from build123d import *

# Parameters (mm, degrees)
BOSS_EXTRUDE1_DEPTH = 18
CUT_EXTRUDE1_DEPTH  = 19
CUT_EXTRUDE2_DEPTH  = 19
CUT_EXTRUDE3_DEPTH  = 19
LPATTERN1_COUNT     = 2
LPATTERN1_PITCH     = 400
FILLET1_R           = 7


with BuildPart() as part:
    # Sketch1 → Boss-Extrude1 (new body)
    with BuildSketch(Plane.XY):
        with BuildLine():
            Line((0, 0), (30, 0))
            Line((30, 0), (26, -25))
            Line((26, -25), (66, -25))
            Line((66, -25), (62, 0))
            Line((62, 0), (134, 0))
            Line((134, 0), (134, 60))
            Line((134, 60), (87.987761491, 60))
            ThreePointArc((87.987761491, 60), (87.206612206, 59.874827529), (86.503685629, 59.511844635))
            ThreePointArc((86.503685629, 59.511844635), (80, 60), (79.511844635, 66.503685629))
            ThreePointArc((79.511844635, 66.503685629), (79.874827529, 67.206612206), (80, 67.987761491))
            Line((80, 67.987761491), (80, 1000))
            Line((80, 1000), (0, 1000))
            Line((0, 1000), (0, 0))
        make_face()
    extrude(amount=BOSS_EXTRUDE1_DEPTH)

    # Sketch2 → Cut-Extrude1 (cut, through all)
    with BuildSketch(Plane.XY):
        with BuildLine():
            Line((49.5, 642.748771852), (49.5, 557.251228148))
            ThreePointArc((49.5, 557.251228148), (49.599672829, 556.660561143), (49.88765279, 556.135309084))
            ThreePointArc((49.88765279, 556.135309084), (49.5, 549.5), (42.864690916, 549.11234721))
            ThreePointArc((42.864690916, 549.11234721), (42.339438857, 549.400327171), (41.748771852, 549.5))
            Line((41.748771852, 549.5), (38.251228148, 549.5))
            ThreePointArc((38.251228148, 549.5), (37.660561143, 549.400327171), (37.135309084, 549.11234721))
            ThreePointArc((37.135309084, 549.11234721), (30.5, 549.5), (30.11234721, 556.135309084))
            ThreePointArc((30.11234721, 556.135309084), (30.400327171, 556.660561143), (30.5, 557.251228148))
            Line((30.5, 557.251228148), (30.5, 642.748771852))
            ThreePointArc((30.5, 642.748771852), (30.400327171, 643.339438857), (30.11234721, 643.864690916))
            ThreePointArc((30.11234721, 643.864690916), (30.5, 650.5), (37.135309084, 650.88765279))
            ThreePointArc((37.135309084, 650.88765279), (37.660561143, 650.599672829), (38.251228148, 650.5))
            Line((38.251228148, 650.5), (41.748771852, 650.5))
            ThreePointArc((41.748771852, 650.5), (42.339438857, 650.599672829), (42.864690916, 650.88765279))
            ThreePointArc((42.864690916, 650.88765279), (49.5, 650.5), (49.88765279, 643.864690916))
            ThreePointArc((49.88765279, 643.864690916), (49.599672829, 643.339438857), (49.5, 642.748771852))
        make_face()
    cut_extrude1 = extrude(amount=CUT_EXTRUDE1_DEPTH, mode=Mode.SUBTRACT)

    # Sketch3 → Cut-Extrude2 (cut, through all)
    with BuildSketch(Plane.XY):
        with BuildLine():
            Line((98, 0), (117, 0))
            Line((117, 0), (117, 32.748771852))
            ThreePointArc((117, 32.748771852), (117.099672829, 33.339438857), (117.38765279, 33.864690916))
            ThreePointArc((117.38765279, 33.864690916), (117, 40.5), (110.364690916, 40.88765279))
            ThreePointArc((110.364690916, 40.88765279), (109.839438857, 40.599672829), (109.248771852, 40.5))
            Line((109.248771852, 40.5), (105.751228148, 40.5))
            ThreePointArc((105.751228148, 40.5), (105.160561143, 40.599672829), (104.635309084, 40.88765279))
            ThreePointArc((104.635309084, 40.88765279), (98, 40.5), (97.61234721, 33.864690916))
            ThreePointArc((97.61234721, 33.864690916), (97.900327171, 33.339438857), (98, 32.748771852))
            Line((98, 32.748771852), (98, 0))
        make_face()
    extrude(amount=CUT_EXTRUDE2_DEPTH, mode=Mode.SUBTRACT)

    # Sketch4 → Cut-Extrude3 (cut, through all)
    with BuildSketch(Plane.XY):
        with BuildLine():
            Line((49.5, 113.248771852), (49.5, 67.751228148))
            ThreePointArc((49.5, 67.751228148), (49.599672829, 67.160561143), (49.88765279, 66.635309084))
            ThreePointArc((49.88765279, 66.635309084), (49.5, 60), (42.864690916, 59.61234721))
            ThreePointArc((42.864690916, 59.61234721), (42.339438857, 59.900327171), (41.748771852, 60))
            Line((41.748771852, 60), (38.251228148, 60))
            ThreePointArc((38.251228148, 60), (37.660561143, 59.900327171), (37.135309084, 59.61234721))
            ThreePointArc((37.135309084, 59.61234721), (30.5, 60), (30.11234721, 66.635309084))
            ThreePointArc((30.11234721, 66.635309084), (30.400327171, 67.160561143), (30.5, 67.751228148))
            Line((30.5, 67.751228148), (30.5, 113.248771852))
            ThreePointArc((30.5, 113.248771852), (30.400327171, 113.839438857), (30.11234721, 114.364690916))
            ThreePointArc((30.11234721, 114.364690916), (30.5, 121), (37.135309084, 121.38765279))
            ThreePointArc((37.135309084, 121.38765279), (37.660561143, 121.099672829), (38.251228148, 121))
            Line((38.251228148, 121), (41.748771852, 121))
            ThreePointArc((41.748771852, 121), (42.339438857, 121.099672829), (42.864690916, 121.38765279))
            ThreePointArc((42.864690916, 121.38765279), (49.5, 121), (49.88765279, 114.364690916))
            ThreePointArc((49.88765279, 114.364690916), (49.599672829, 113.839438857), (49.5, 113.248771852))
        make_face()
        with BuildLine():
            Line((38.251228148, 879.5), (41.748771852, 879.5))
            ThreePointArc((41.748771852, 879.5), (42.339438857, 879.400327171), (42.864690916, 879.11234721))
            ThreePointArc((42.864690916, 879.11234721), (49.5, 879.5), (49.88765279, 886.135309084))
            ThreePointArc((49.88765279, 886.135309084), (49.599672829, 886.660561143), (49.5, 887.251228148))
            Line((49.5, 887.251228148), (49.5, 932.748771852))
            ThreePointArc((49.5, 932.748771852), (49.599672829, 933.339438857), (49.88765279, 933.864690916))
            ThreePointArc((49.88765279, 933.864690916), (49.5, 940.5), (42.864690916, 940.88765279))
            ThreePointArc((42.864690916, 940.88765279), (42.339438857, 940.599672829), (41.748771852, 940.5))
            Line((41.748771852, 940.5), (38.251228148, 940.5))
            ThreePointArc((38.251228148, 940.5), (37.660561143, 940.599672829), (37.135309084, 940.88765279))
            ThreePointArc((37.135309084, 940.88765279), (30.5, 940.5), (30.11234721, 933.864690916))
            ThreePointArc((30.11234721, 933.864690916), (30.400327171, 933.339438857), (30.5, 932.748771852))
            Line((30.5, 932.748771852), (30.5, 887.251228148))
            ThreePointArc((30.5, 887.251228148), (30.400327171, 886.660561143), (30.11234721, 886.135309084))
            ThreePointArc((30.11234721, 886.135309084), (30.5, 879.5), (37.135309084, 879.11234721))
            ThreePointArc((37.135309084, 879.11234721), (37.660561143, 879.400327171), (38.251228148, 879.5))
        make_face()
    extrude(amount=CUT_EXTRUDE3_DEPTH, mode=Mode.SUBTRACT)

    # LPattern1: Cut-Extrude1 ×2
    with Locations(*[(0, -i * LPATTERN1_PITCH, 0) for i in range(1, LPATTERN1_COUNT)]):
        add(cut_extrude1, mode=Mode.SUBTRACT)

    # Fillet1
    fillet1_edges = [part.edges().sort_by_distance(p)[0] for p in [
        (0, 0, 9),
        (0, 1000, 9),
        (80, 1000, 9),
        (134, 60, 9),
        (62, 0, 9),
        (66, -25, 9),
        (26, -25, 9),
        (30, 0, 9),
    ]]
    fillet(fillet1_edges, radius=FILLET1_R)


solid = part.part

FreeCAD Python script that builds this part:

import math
import FreeCAD as App
import Part
import Sketcher
from FreeCAD import Vector
Q = App.Units.Quantity


def edges_at(feature, points):
    """Names of the edges that pass closest to the given points."""
    edges = feature.Shape.Edges
    near = lambda p: min(range(len(edges)), key=lambda i: edges[i].distToShape(Part.Vertex(*p))[0])
    return sorted({f"Edge{near(p) + 1}" for p in points})

doc = App.newDocument("Part")
body = doc.addObject("PartDesign::Body", "Body")

sketch1 = body.newObject("Sketcher::SketchObject", "Sketch")
sketch1.AttachmentSupport = (doc.getObject("XY_Plane"), [""])
sketch1.MapMode = "FlatFace"
sketch1.addGeometry(Part.LineSegment(Vector(0, 0, 0), Vector(30, 0, 0)), False)
sketch1.addGeometry(Part.LineSegment(Vector(30, 0, 0), Vector(26, -25, 0)), False)
sketch1.addGeometry(Part.LineSegment(Vector(26, -25, 0), Vector(66, -25, 0)), False)
sketch1.addGeometry(Part.LineSegment(Vector(66, -25, 0), Vector(62, 0, 0)), False)
sketch1.addGeometry(Part.LineSegment(Vector(62, 0, 0), Vector(134, 0, 0)), False)
sketch1.addGeometry(Part.LineSegment(Vector(134, 0, 0), Vector(134, 60, 0)), False)
sketch1.addGeometry(Part.LineSegment(Vector(134, 60, 0), Vector(87.987761, 60, 0)), False)
sketch1.addGeometry(Part.ArcOfCircle(Part.Circle(Vector(87.987761, 57.5, 0), Vector(0, 0, 1), 2.5), math.radians(90), math.radians(126.415054)), False)
sketch1.addGeometry(Part.ArcOfCircle(Part.Circle(Vector(83.535534, 63.535534, 0), Vector(0, 0, 1), 5), math.radians(143.584946), math.radians(306.415054)), False)
sketch1.addGeometry(Part.ArcOfCircle(Part.Circle(Vector(77.5, 67.987761, 0), Vector(0, 0, 1), 2.5), math.radians(-36.415054), math.radians(0)), False)
sketch1.addGeometry(Part.LineSegment(Vector(80, 67.987761, 0), Vector(80, 1000, 0)), False)
sketch1.addGeometry(Part.LineSegment(Vector(80, 1000, 0), Vector(0, 1000, 0)), False)
sketch1.addGeometry(Part.LineSegment(Vector(0, 1000, 0), Vector(0, 0, 0)), False)
sketch1.addConstraint(Sketcher.Constraint("Coincident", 0, 2, 1, 1))
sketch1.addConstraint(Sketcher.Constraint("Coincident", 1, 2, 2, 1))
sketch1.addConstraint(Sketcher.Constraint("Coincident", 2, 2, 3, 1))
sketch1.addConstraint(Sketcher.Constraint("Coincident", 3, 2, 4, 1))
sketch1.addConstraint(Sketcher.Constraint("Coincident", 4, 2, 5, 1))
sketch1.addConstraint(Sketcher.Constraint("Coincident", 5, 2, 6, 1))
sketch1.addConstraint(Sketcher.Constraint("Tangent", 6, 2, 7, 1))
sketch1.addConstraint(Sketcher.Constraint("Tangent", 7, 2, 8, 2))
sketch1.addConstraint(Sketcher.Constraint("Tangent", 8, 1, 9, 1))
sketch1.addConstraint(Sketcher.Constraint("Tangent", 9, 2, 10, 1))
sketch1.addConstraint(Sketcher.Constraint("Coincident", 10, 2, 11, 1))
sketch1.addConstraint(Sketcher.Constraint("Coincident", 11, 2, 12, 1))
sketch1.addConstraint(Sketcher.Constraint("Coincident", 12, 2, 0, 1))
sketch1.addConstraint(Sketcher.Constraint("Horizontal", 0))
sketch1.addConstraint(Sketcher.Constraint("Horizontal", 2))
sketch1.addConstraint(Sketcher.Constraint("Horizontal", 4))
sketch1.addConstraint(Sketcher.Constraint("Vertical", 5))
sketch1.addConstraint(Sketcher.Constraint("Horizontal", 6))
sketch1.addConstraint(Sketcher.Constraint("Vertical", 10))
sketch1.addConstraint(Sketcher.Constraint("Horizontal", 11))
sketch1.addConstraint(Sketcher.Constraint("Vertical", 12))
sketch1.addConstraint(Sketcher.Constraint("Coincident", 12, 2, -1, 1))
sketch1.addConstraint(Sketcher.Constraint("Equal", 7, 9))
sketch1.addConstraint(Sketcher.Constraint("PointOnObject", 3, 2, -1))
sketch1.addConstraint(Sketcher.Constraint("Equal", 1, 3))
sketch1.addConstraint(Sketcher.Constraint("Radius", 8, Q("5 mm")))
sketch1.addConstraint(Sketcher.Constraint("Radius", 7, Q("2.5 mm")))
sketch1.addConstraint(Sketcher.Constraint("DistanceX", 0, 1, 0, 2, Q("30 mm")))
sketch1.addConstraint(Sketcher.Constraint("DistanceX", 2, 1, 2, 2, Q("40 mm")))
sketch1.addConstraint(Sketcher.Constraint("DistanceX", 4, 1, 4, 2, Q("72 mm")))
sketch1.addConstraint(Sketcher.Constraint("DistanceX", 11, 2, 11, 1, Q("80 mm")))
sketch1.addConstraint(Sketcher.Constraint("DistanceY", 5, 1, 5, 2, Q("60 mm")))
sketch1.addConstraint(Sketcher.Constraint("DistanceY", 12, 2, 12, 1, Q("1000 mm")))
sketch1.addConstraint(Sketcher.Constraint("DistanceX", -1, 1, 1, 2, Q("26 mm")))
sketch1.addConstraint(Sketcher.Constraint("DistanceY", 1, 2, -1, 1, Q("25 mm")))
sketch1.addConstraint(Sketcher.Constraint("DistanceX", 6, 2, 6, 1, Q("46.012239 mm")))
sketch1.addConstraint(Sketcher.Constraint("DistanceY", 10, 1, 10, 2, Q("932.012239 mm")))
pad1 = body.newObject("PartDesign::Pad", "Pad")
pad1.Profile = sketch1
pad1.Length = 18

sketch2 = body.newObject("Sketcher::SketchObject", "Sketch001")
sketch2.AttachmentSupport = (doc.getObject("XY_Plane"), [""])
sketch2.MapMode = "FlatFace"
sketch2.addGeometry(Part.LineSegment(Vector(49.5, 557.251228, 0), Vector(49.5, 642.748772, 0)), False)
sketch2.addGeometry(Part.ArcOfCircle(Part.Circle(Vector(51.3, 642.748772, 0), Vector(0, 0, 1), 1.8), math.radians(141.687149), math.radians(180)), False)
sketch2.addGeometry(Part.ArcOfCircle(Part.Circle(Vector(45.964466, 646.964466, 0), Vector(0, 0, 1), 5), math.radians(-38.312851), math.radians(128.312851)), False)
sketch2.addGeometry(Part.ArcOfCircle(Part.Circle(Vector(41.748772, 652.3, 0), Vector(0, 0, 1), 1.8), math.radians(-90), math.radians(-51.687149)), False)
sketch2.addGeometry(Part.LineSegment(Vector(41.748772, 650.5, 0), Vector(38.251228, 650.5, 0)), False)
sketch2.addGeometry(Part.ArcOfCircle(Part.Circle(Vector(38.251228, 652.3, 0), Vector(0, 0, 1), 1.8), math.radians(-128.312851), math.radians(-90)), False)
sketch2.addGeometry(Part.ArcOfCircle(Part.Circle(Vector(34.035534, 646.964466, 0), Vector(0, 0, 1), 5), math.radians(51.687149), math.radians(218.312851)), False)
sketch2.addGeometry(Part.ArcOfCircle(Part.Circle(Vector(28.7, 642.748772, 0), Vector(0, 0, 1), 1.8), math.radians(0), math.radians(38.312851)), False)
sketch2.addGeometry(Part.LineSegment(Vector(30.5, 642.748772, 0), Vector(30.5, 557.251228, 0)), False)
sketch2.addGeometry(Part.ArcOfCircle(Part.Circle(Vector(28.7, 557.251228, 0), Vector(0, 0, 1), 1.8), math.radians(-38.312851), math.radians(0)), False)
sketch2.addGeometry(Part.ArcOfCircle(Part.Circle(Vector(34.035534, 553.035534, 0), Vector(0, 0, 1), 5), math.radians(141.687149), math.radians(308.312851)), False)
sketch2.addGeometry(Part.ArcOfCircle(Part.Circle(Vector(38.251228, 547.7, 0), Vector(0, 0, 1), 1.8), math.radians(90), math.radians(128.312851)), False)
sketch2.addGeometry(Part.LineSegment(Vector(38.251228, 549.5, 0), Vector(41.748772, 549.5, 0)), False)
sketch2.addGeometry(Part.ArcOfCircle(Part.Circle(Vector(41.748772, 547.7, 0), Vector(0, 0, 1), 1.8), math.radians(51.687149), math.radians(90)), False)
sketch2.addGeometry(Part.ArcOfCircle(Part.Circle(Vector(45.964466, 553.035534, 0), Vector(0, 0, 1), 5), math.radians(-128.312851), math.radians(38.312851)), False)
sketch2.addGeometry(Part.ArcOfCircle(Part.Circle(Vector(51.3, 557.251228, 0), Vector(0, 0, 1), 1.8), math.radians(-180), math.radians(-141.687149)), False)
sketch2.addConstraint(Sketcher.Constraint("Tangent", 0, 2, 1, 2))
sketch2.addConstraint(Sketcher.Constraint("Tangent", 1, 1, 2, 1))
sketch2.addConstraint(Sketcher.Constraint("Tangent", 2, 2, 3, 2))
sketch2.addConstraint(Sketcher.Constraint("Tangent", 3, 1, 4, 1))
sketch2.addConstraint(Sketcher.Constraint("Tangent", 4, 2, 5, 2))
sketch2.addConstraint(Sketcher.Constraint("Tangent", 5, 1, 6, 1))
sketch2.addConstraint(Sketcher.Constraint("Tangent", 6, 2, 7, 2))
sketch2.addConstraint(Sketcher.Constraint("Tangent", 7, 1, 8, 1))
sketch2.addConstraint(Sketcher.Constraint("Tangent", 8, 2, 9, 2))
sketch2.addConstraint(Sketcher.Constraint("Tangent", 9, 1, 10, 1))
sketch2.addConstraint(Sketcher.Constraint("Tangent", 10, 2, 11, 2))
sketch2.addConstraint(Sketcher.Constraint("Tangent", 11, 1, 12, 1))
sketch2.addConstraint(Sketcher.Constraint("Tangent", 12, 2, 13, 2))
sketch2.addConstraint(Sketcher.Constraint("Tangent", 13, 1, 14, 1))
sketch2.addConstraint(Sketcher.Constraint("Tangent", 14, 2, 15, 2))
sketch2.addConstraint(Sketcher.Constraint("Tangent", 15, 1, 0, 1))
sketch2.addConstraint(Sketcher.Constraint("Vertical", 0))
sketch2.addConstraint(Sketcher.Constraint("Horizontal", 4))
sketch2.addConstraint(Sketcher.Constraint("Vertical", 8))
sketch2.addConstraint(Sketcher.Constraint("Horizontal", 12))
sketch2.addConstraint(Sketcher.Constraint("Equal", 1, 3))
sketch2.addConstraint(Sketcher.Constraint("Equal", 3, 5))
sketch2.addConstraint(Sketcher.Constraint("Equal", 2, 6))
sketch2.addConstraint(Sketcher.Constraint("Equal", 5, 7))
sketch2.addConstraint(Sketcher.Constraint("Equal", 7, 9))
sketch2.addConstraint(Sketcher.Constraint("Equal", 6, 10))
sketch2.addConstraint(Sketcher.Constraint("Equal", 9, 11))
sketch2.addConstraint(Sketcher.Constraint("Equal", 11, 13))
sketch2.addConstraint(Sketcher.Constraint("Equal", 10, 14))
sketch2.addConstraint(Sketcher.Constraint("Equal", 13, 15))
sketch2.addConstraint(Sketcher.Constraint("Horizontal", 2, 3, 6, 3))
sketch2.addConstraint(Sketcher.Constraint("Horizontal", 1, 3, 7, 3))
sketch2.addConstraint(Sketcher.Constraint("Horizontal", 10, 3, 14, 3))
sketch2.addConstraint(Sketcher.Constraint("Horizontal", 9, 3, 15, 3))
sketch2.addConstraint(Sketcher.Constraint("Vertical", 6, 3, 10, 3))
sketch2.addConstraint(Sketcher.Constraint("Vertical", 5, 3, 11, 3))
sketch2.addConstraint(Sketcher.Constraint("Radius", 2, Q("5 mm")))
sketch2.addConstraint(Sketcher.Constraint("Radius", 1, Q("1.8 mm")))
sketch2.addConstraint(Sketcher.Constraint("DistanceX", -1, 1, 1, 3, Q("51.3 mm")))
sketch2.addConstraint(Sketcher.Constraint("DistanceY", -1, 1, 3, 3, Q("652.3 mm")))
sketch2.addConstraint(Sketcher.Constraint("DistanceX", -1, 1, 7, 3, Q("28.7 mm")))
sketch2.addConstraint(Sketcher.Constraint("DistanceY", -1, 1, 11, 3, Q("547.7 mm")))
sketch2.addConstraint(Sketcher.Constraint("DistanceX", 4, 2, 4, 1, Q("3.497544 mm")))
sketch2.addConstraint(Sketcher.Constraint("DistanceY", 0, 1, 0, 2, Q("85.497544 mm")))
pocket1 = body.newObject("PartDesign::Pocket", "Pocket")
pocket1.Profile = sketch2
pocket1.Type = "ThroughAll"
pocket1.Reversed = True

sketch3 = body.newObject("Sketcher::SketchObject", "Sketch002")
sketch3.AttachmentSupport = (doc.getObject("XY_Plane"), [""])
sketch3.MapMode = "FlatFace"
sketch3.addGeometry(Part.LineSegment(Vector(98, 0, 0), Vector(117, 0, 0)), False)
sketch3.addGeometry(Part.LineSegment(Vector(117, 0, 0), Vector(117, 32.748772, 0)), False)
sketch3.addGeometry(Part.ArcOfCircle(Part.Circle(Vector(118.8, 32.748772, 0), Vector(0, 0, 1), 1.8), math.radians(141.687149), math.radians(180)), False)
sketch3.addGeometry(Part.ArcOfCircle(Part.Circle(Vector(113.464466, 36.964466, 0), Vector(0, 0, 1), 5), math.radians(-38.312851), math.radians(128.312851)), False)
sketch3.addGeometry(Part.ArcOfCircle(Part.Circle(Vector(109.248772, 42.3, 0), Vector(0, 0, 1), 1.8), math.radians(-90), math.radians(-51.687149)), False)
sketch3.addGeometry(Part.LineSegment(Vector(109.248772, 40.5, 0), Vector(105.751228, 40.5, 0)), False)
sketch3.addGeometry(Part.ArcOfCircle(Part.Circle(Vector(105.751228, 42.3, 0), Vector(0, 0, 1), 1.8), math.radians(-128.312851), math.radians(-90)), False)
sketch3.addGeometry(Part.ArcOfCircle(Part.Circle(Vector(101.535534, 36.964466, 0), Vector(0, 0, 1), 5), math.radians(51.687149), math.radians(218.312851)), False)
sketch3.addGeometry(Part.ArcOfCircle(Part.Circle(Vector(96.2, 32.748772, 0), Vector(0, 0, 1), 1.8), math.radians(0), math.radians(38.312851)), False)
sketch3.addGeometry(Part.LineSegment(Vector(98, 32.748772, 0), Vector(98, 0, 0)), False)
sketch3.addConstraint(Sketcher.Constraint("Coincident", 0, 2, 1, 1))
sketch3.addConstraint(Sketcher.Constraint("Tangent", 1, 2, 2, 2))
sketch3.addConstraint(Sketcher.Constraint("Tangent", 2, 1, 3, 1))
sketch3.addConstraint(Sketcher.Constraint("Tangent", 3, 2, 4, 2))
sketch3.addConstraint(Sketcher.Constraint("Tangent", 4, 1, 5, 1))
sketch3.addConstraint(Sketcher.Constraint("Tangent", 5, 2, 6, 2))
sketch3.addConstraint(Sketcher.Constraint("Tangent", 6, 1, 7, 1))
sketch3.addConstraint(Sketcher.Constraint("Tangent", 7, 2, 8, 2))
sketch3.addConstraint(Sketcher.Constraint("Tangent", 8, 1, 9, 1))
sketch3.addConstraint(Sketcher.Constraint("Coincident", 9, 2, 0, 1))
sketch3.addConstraint(Sketcher.Constraint("Horizontal", 0))
sketch3.addConstraint(Sketcher.Constraint("Vertical", 1))
sketch3.addConstraint(Sketcher.Constraint("Horizontal", 5))
sketch3.addConstraint(Sketcher.Constraint("Vertical", 9))
sketch3.addConstraint(Sketcher.Constraint("Equal", 2, 4))
sketch3.addConstraint(Sketcher.Constraint("Equal", 4, 6))
sketch3.addConstraint(Sketcher.Constraint("Equal", 3, 7))
sketch3.addConstraint(Sketcher.Constraint("Equal", 6, 8))
sketch3.addConstraint(Sketcher.Constraint("PointOnObject", 0, 2, -1))
sketch3.addConstraint(Sketcher.Constraint("Horizontal", 3, 3, 7, 3))
sketch3.addConstraint(Sketcher.Constraint("Horizontal", 2, 3, 8, 3))
sketch3.addConstraint(Sketcher.Constraint("Radius", 3, Q("5 mm")))
sketch3.addConstraint(Sketcher.Constraint("Radius", 2, Q("1.8 mm")))
sketch3.addConstraint(Sketcher.Constraint("DistanceX", 0, 1, 0, 2, Q("19 mm")))
sketch3.addConstraint(Sketcher.Constraint("DistanceX", -1, 1, 0, 2, Q("117 mm")))
sketch3.addConstraint(Sketcher.Constraint("DistanceY", -1, 1, 4, 3, Q("42.3 mm")))
sketch3.addConstraint(Sketcher.Constraint("DistanceY", 1, 1, 1, 2, Q("32.748772 mm")))
sketch3.addConstraint(Sketcher.Constraint("DistanceX", 5, 2, 5, 1, Q("3.497544 mm")))
pocket2 = body.newObject("PartDesign::Pocket", "Pocket001")
pocket2.Profile = sketch3
pocket2.Type = "ThroughAll"
pocket2.Reversed = True

sketch4 = body.newObject("Sketcher::SketchObject", "Sketch003")
sketch4.AttachmentSupport = (doc.getObject("XY_Plane"), [""])
sketch4.MapMode = "FlatFace"
sketch4.addGeometry(Part.LineSegment(Vector(49.5, 67.751228, 0), Vector(49.5, 113.248772, 0)), False)
sketch4.addGeometry(Part.ArcOfCircle(Part.Circle(Vector(51.3, 113.248772, 0), Vector(0, 0, 1), 1.8), math.radians(141.687149), math.radians(180)), False)
sketch4.addGeometry(Part.ArcOfCircle(Part.Circle(Vector(45.964466, 117.464466, 0), Vector(0, 0, 1), 5), math.radians(-38.312851), math.radians(128.312851)), False)
sketch4.addGeometry(Part.ArcOfCircle(Part.Circle(Vector(41.748772, 122.8, 0), Vector(0, 0, 1), 1.8), math.radians(-90), math.radians(-51.687149)), False)
sketch4.addGeometry(Part.LineSegment(Vector(41.748772, 121, 0), Vector(38.251228, 121, 0)), False)
sketch4.addGeometry(Part.ArcOfCircle(Part.Circle(Vector(38.251228, 122.8, 0), Vector(0, 0, 1), 1.8), math.radians(-128.312851), math.radians(-90)), False)
sketch4.addGeometry(Part.ArcOfCircle(Part.Circle(Vector(34.035534, 117.464466, 0), Vector(0, 0, 1), 5), math.radians(51.687149), math.radians(218.312851)), False)
sketch4.addGeometry(Part.ArcOfCircle(Part.Circle(Vector(28.7, 113.248772, 0), Vector(0, 0, 1), 1.8), math.radians(0), math.radians(38.312851)), False)
sketch4.addGeometry(Part.LineSegment(Vector(30.5, 113.248772, 0), Vector(30.5, 67.751228, 0)), False)
sketch4.addGeometry(Part.ArcOfCircle(Part.Circle(Vector(28.7, 67.751228, 0), Vector(0, 0, 1), 1.8), math.radians(-38.312851), math.radians(0)), False)
sketch4.addGeometry(Part.ArcOfCircle(Part.Circle(Vector(34.035534, 63.535534, 0), Vector(0, 0, 1), 5), math.radians(141.687149), math.radians(308.312851)), False)
sketch4.addGeometry(Part.ArcOfCircle(Part.Circle(Vector(38.251228, 58.2, 0), Vector(0, 0, 1), 1.8), math.radians(90), math.radians(128.312851)), False)
sketch4.addGeometry(Part.LineSegment(Vector(38.251228, 60, 0), Vector(41.748772, 60, 0)), False)
sketch4.addGeometry(Part.ArcOfCircle(Part.Circle(Vector(41.748772, 58.2, 0), Vector(0, 0, 1), 1.8), math.radians(51.687149), math.radians(90)), False)
sketch4.addGeometry(Part.ArcOfCircle(Part.Circle(Vector(45.964466, 63.535534, 0), Vector(0, 0, 1), 5), math.radians(-128.312851), math.radians(38.312851)), False)
sketch4.addGeometry(Part.ArcOfCircle(Part.Circle(Vector(51.3, 67.751228, 0), Vector(0, 0, 1), 1.8), math.radians(-180), math.radians(-141.687149)), False)
sketch4.addGeometry(Part.LineSegment(Vector(38.251228, 879.5, 0), Vector(41.748772, 879.5, 0)), False)
sketch4.addGeometry(Part.ArcOfCircle(Part.Circle(Vector(41.748772, 877.7, 0), Vector(0, 0, 1), 1.8), math.radians(51.687149), math.radians(90)), False)
sketch4.addGeometry(Part.ArcOfCircle(Part.Circle(Vector(45.964466, 883.035534, 0), Vector(0, 0, 1), 5), math.radians(-128.312851), math.radians(38.312851)), False)
sketch4.addGeometry(Part.ArcOfCircle(Part.Circle(Vector(51.3, 887.251228, 0), Vector(0, 0, 1), 1.8), math.radians(-180), math.radians(-141.687149)), False)
sketch4.addGeometry(Part.LineSegment(Vector(49.5, 887.251228, 0), Vector(49.5, 932.748772, 0)), False)
sketch4.addGeometry(Part.ArcOfCircle(Part.Circle(Vector(51.3, 932.748772, 0), Vector(0, 0, 1), 1.8), math.radians(141.687149), math.radians(180)), False)
sketch4.addGeometry(Part.ArcOfCircle(Part.Circle(Vector(45.964466, 936.964466, 0), Vector(0, 0, 1), 5), math.radians(-38.312851), math.radians(128.312851)), False)
sketch4.addGeometry(Part.ArcOfCircle(Part.Circle(Vector(41.748772, 942.3, 0), Vector(0, 0, 1), 1.8), math.radians(-90), math.radians(-51.687149)), False)
sketch4.addGeometry(Part.LineSegment(Vector(41.748772, 940.5, 0), Vector(38.251228, 940.5, 0)), False)
sketch4.addGeometry(Part.ArcOfCircle(Part.Circle(Vector(38.251228, 942.3, 0), Vector(0, 0, 1), 1.8), math.radians(-128.312851), math.radians(-90)), False)
sketch4.addGeometry(Part.ArcOfCircle(Part.Circle(Vector(34.035534, 936.964466, 0), Vector(0, 0, 1), 5), math.radians(51.687149), math.radians(218.312851)), False)
sketch4.addGeometry(Part.ArcOfCircle(Part.Circle(Vector(28.7, 932.748772, 0), Vector(0, 0, 1), 1.8), math.radians(0), math.radians(38.312851)), False)
sketch4.addGeometry(Part.LineSegment(Vector(30.5, 932.748772, 0), Vector(30.5, 887.251228, 0)), False)
sketch4.addGeometry(Part.ArcOfCircle(Part.Circle(Vector(28.7, 887.251228, 0), Vector(0, 0, 1), 1.8), math.radians(-38.312851), math.radians(0)), False)
sketch4.addGeometry(Part.ArcOfCircle(Part.Circle(Vector(34.035534, 883.035534, 0), Vector(0, 0, 1), 5), math.radians(141.687149), math.radians(308.312851)), False)
sketch4.addGeometry(Part.ArcOfCircle(Part.Circle(Vector(38.251228, 877.7, 0), Vector(0, 0, 1), 1.8), math.radians(90), math.radians(128.312851)), False)
sketch4.addConstraint(Sketcher.Constraint("Tangent", 0, 2, 1, 2))
sketch4.addConstraint(Sketcher.Constraint("Tangent", 1, 1, 2, 1))
sketch4.addConstraint(Sketcher.Constraint("Tangent", 2, 2, 3, 2))
sketch4.addConstraint(Sketcher.Constraint("Tangent", 3, 1, 4, 1))
sketch4.addConstraint(Sketcher.Constraint("Tangent", 4, 2, 5, 2))
sketch4.addConstraint(Sketcher.Constraint("Tangent", 5, 1, 6, 1))
sketch4.addConstraint(Sketcher.Constraint("Tangent", 6, 2, 7, 2))
sketch4.addConstraint(Sketcher.Constraint("Tangent", 7, 1, 8, 1))
sketch4.addConstraint(Sketcher.Constraint("Tangent", 8, 2, 9, 2))
sketch4.addConstraint(Sketcher.Constraint("Tangent", 9, 1, 10, 1))
sketch4.addConstraint(Sketcher.Constraint("Tangent", 10, 2, 11, 2))
sketch4.addConstraint(Sketcher.Constraint("Tangent", 11, 1, 12, 1))
sketch4.addConstraint(Sketcher.Constraint("Tangent", 12, 2, 13, 2))
sketch4.addConstraint(Sketcher.Constraint("Tangent", 13, 1, 14, 1))
sketch4.addConstraint(Sketcher.Constraint("Tangent", 14, 2, 15, 2))
sketch4.addConstraint(Sketcher.Constraint("Tangent", 15, 1, 0, 1))
sketch4.addConstraint(Sketcher.Constraint("Tangent", 16, 2, 17, 2))
sketch4.addConstraint(Sketcher.Constraint("Tangent", 17, 1, 18, 1))
sketch4.addConstraint(Sketcher.Constraint("Tangent", 18, 2, 19, 2))
sketch4.addConstraint(Sketcher.Constraint("Tangent", 19, 1, 20, 1))
sketch4.addConstraint(Sketcher.Constraint("Tangent", 20, 2, 21, 2))
sketch4.addConstraint(Sketcher.Constraint("Tangent", 21, 1, 22, 1))
sketch4.addConstraint(Sketcher.Constraint("Tangent", 22, 2, 23, 2))
sketch4.addConstraint(Sketcher.Constraint("Tangent", 23, 1, 24, 1))
sketch4.addConstraint(Sketcher.Constraint("Tangent", 24, 2, 25, 2))
sketch4.addConstraint(Sketcher.Constraint("Tangent", 25, 1, 26, 1))
sketch4.addConstraint(Sketcher.Constraint("Tangent", 26, 2, 27, 2))
sketch4.addConstraint(Sketcher.Constraint("Tangent", 27, 1, 28, 1))
sketch4.addConstraint(Sketcher.Constraint("Tangent", 28, 2, 29, 2))
sketch4.addConstraint(Sketcher.Constraint("Tangent", 29, 1, 30, 1))
sketch4.addConstraint(Sketcher.Constraint("Tangent", 30, 2, 31, 2))
sketch4.addConstraint(Sketcher.Constraint("Tangent", 31, 1, 16, 1))
sketch4.addConstraint(Sketcher.Constraint("Vertical", 0))
sketch4.addConstraint(Sketcher.Constraint("Horizontal", 4))
sketch4.addConstraint(Sketcher.Constraint("Vertical", 8))
sketch4.addConstraint(Sketcher.Constraint("Horizontal", 12))
sketch4.addConstraint(Sketcher.Constraint("Horizontal", 16))
sketch4.addConstraint(Sketcher.Constraint("Vertical", 20))
sketch4.addConstraint(Sketcher.Constraint("Horizontal", 24))
sketch4.addConstraint(Sketcher.Constraint("Vertical", 28))
sketch4.addConstraint(Sketcher.Constraint("Equal", 1, 3))
sketch4.addConstraint(Sketcher.Constraint("Equal", 3, 5))
sketch4.addConstraint(Sketcher.Constraint("Equal", 2, 6))
sketch4.addConstraint(Sketcher.Constraint("Equal", 5, 7))
sketch4.addConstraint(Sketcher.Constraint("Equal", 7, 9))
sketch4.addConstraint(Sketcher.Constraint("Equal", 6, 10))
sketch4.addConstraint(Sketcher.Constraint("Equal", 9, 11))
sketch4.addConstraint(Sketcher.Constraint("Equal", 11, 13))
sketch4.addConstraint(Sketcher.Constraint("Equal", 10, 14))
sketch4.addConstraint(Sketcher.Constraint("Equal", 13, 15))
sketch4.addConstraint(Sketcher.Constraint("Equal", 15, 17))
sketch4.addConstraint(Sketcher.Constraint("Equal", 14, 18))
sketch4.addConstraint(Sketcher.Constraint("Equal", 17, 19))
sketch4.addConstraint(Sketcher.Constraint("Equal", 19, 21))
sketch4.addConstraint(Sketcher.Constraint("Equal", 18, 22))
sketch4.addConstraint(Sketcher.Constraint("Equal", 21, 23))
sketch4.addConstraint(Sketcher.Constraint("Equal", 23, 25))
sketch4.addConstraint(Sketcher.Constraint("Equal", 22, 26))
sketch4.addConstraint(Sketcher.Constraint("Equal", 25, 27))
sketch4.addConstraint(Sketcher.Constraint("Equal", 27, 29))
sketch4.addConstraint(Sketcher.Constraint("Equal", 26, 30))
sketch4.addConstraint(Sketcher.Constraint("Equal", 29, 31))
sketch4.addConstraint(Sketcher.Constraint("Horizontal", 2, 3, 6, 3))
sketch4.addConstraint(Sketcher.Constraint("Horizontal", 1, 3, 7, 3))
sketch4.addConstraint(Sketcher.Constraint("Horizontal", 10, 3, 14, 3))
sketch4.addConstraint(Sketcher.Constraint("Horizontal", 9, 3, 15, 3))
sketch4.addConstraint(Sketcher.Constraint("Horizontal", 22, 3, 26, 3))
sketch4.addConstraint(Sketcher.Constraint("Horizontal", 21, 3, 27, 3))
sketch4.addConstraint(Sketcher.Constraint("Horizontal", 19, 3, 29, 3))
sketch4.addConstraint(Sketcher.Constraint("Horizontal", 18, 3, 30, 3))
sketch4.addConstraint(Sketcher.Constraint("Vertical", 6, 3, 10, 3))
sketch4.addConstraint(Sketcher.Constraint("Vertical", 5, 3, 11, 3))
sketch4.addConstraint(Sketcher.Constraint("Vertical", 13, 3, 17, 3))
sketch4.addConstraint(Sketcher.Constraint("Vertical", 14, 3, 18, 3))
sketch4.addConstraint(Sketcher.Constraint("Vertical", 15, 3, 19, 3))
sketch4.addConstraint(Sketcher.Constraint("Vertical", 18, 3, 22, 3))
sketch4.addConstraint(Sketcher.Constraint("Vertical", 17, 3, 23, 3))
sketch4.addConstraint(Sketcher.Constraint("Vertical", 11, 3, 25, 3))
sketch4.addConstraint(Sketcher.Constraint("Equal", 8, 20))
sketch4.addConstraint(Sketcher.Constraint("Radius", 2, Q("5 mm")))
sketch4.addConstraint(Sketcher.Constraint("Radius", 1, Q("1.8 mm")))
sketch4.addConstraint(Sketcher.Constraint("DistanceY", -1, 1, 3, 1, Q("121 mm")))
sketch4.addConstraint(Sketcher.Constraint("DistanceY", -1, 1, 11, 1, Q("60 mm")))
sketch4.addConstraint(Sketcher.Constraint("DistanceX", -1, 1, 1, 3, Q("51.3 mm")))
sketch4.addConstraint(Sketcher.Constraint("DistanceX", -1, 1, 7, 3, Q("28.7 mm")))
sketch4.addConstraint(Sketcher.Constraint("DistanceY", -1, 1, 17, 3, Q("877.7 mm")))
sketch4.addConstraint(Sketcher.Constraint("DistanceX", 4, 2, 4, 1, Q("3.497544 mm")))
sketch4.addConstraint(Sketcher.Constraint("DistanceY", 0, 1, 0, 2, Q("45.497544 mm")))
pocket3 = body.newObject("PartDesign::Pocket", "Pocket002")
pocket3.Profile = sketch4
pocket3.Type = "ThroughAll"
pocket3.Reversed = True
doc.recompute()

linearpattern = body.newObject("PartDesign::LinearPattern", "LinearPattern")
linearpattern.Originals = [pocket1]
linearpattern.Direction = (doc.getObject("Y_Axis"), [""])
linearpattern.Mode = "offset"
linearpattern.Offset = 400
linearpattern.Occurrences = 2
linearpattern.Reversed = True
body.Tip = linearpattern
doc.recompute()

fillet = body.newObject("PartDesign::Fillet", "Fillet")
fillet.Base = (linearpattern, edges_at(linearpattern, [
    (0, 0, 9),
    (0, 1000, 9),
    (80, 1000, 9),
    (134, 60, 9),
    (62, 0, 9),
    (66, -25, 9),
    (26, -25, 9),
    (30, 0, 9),
]))
fillet.Radius = 7

doc.recompute()
